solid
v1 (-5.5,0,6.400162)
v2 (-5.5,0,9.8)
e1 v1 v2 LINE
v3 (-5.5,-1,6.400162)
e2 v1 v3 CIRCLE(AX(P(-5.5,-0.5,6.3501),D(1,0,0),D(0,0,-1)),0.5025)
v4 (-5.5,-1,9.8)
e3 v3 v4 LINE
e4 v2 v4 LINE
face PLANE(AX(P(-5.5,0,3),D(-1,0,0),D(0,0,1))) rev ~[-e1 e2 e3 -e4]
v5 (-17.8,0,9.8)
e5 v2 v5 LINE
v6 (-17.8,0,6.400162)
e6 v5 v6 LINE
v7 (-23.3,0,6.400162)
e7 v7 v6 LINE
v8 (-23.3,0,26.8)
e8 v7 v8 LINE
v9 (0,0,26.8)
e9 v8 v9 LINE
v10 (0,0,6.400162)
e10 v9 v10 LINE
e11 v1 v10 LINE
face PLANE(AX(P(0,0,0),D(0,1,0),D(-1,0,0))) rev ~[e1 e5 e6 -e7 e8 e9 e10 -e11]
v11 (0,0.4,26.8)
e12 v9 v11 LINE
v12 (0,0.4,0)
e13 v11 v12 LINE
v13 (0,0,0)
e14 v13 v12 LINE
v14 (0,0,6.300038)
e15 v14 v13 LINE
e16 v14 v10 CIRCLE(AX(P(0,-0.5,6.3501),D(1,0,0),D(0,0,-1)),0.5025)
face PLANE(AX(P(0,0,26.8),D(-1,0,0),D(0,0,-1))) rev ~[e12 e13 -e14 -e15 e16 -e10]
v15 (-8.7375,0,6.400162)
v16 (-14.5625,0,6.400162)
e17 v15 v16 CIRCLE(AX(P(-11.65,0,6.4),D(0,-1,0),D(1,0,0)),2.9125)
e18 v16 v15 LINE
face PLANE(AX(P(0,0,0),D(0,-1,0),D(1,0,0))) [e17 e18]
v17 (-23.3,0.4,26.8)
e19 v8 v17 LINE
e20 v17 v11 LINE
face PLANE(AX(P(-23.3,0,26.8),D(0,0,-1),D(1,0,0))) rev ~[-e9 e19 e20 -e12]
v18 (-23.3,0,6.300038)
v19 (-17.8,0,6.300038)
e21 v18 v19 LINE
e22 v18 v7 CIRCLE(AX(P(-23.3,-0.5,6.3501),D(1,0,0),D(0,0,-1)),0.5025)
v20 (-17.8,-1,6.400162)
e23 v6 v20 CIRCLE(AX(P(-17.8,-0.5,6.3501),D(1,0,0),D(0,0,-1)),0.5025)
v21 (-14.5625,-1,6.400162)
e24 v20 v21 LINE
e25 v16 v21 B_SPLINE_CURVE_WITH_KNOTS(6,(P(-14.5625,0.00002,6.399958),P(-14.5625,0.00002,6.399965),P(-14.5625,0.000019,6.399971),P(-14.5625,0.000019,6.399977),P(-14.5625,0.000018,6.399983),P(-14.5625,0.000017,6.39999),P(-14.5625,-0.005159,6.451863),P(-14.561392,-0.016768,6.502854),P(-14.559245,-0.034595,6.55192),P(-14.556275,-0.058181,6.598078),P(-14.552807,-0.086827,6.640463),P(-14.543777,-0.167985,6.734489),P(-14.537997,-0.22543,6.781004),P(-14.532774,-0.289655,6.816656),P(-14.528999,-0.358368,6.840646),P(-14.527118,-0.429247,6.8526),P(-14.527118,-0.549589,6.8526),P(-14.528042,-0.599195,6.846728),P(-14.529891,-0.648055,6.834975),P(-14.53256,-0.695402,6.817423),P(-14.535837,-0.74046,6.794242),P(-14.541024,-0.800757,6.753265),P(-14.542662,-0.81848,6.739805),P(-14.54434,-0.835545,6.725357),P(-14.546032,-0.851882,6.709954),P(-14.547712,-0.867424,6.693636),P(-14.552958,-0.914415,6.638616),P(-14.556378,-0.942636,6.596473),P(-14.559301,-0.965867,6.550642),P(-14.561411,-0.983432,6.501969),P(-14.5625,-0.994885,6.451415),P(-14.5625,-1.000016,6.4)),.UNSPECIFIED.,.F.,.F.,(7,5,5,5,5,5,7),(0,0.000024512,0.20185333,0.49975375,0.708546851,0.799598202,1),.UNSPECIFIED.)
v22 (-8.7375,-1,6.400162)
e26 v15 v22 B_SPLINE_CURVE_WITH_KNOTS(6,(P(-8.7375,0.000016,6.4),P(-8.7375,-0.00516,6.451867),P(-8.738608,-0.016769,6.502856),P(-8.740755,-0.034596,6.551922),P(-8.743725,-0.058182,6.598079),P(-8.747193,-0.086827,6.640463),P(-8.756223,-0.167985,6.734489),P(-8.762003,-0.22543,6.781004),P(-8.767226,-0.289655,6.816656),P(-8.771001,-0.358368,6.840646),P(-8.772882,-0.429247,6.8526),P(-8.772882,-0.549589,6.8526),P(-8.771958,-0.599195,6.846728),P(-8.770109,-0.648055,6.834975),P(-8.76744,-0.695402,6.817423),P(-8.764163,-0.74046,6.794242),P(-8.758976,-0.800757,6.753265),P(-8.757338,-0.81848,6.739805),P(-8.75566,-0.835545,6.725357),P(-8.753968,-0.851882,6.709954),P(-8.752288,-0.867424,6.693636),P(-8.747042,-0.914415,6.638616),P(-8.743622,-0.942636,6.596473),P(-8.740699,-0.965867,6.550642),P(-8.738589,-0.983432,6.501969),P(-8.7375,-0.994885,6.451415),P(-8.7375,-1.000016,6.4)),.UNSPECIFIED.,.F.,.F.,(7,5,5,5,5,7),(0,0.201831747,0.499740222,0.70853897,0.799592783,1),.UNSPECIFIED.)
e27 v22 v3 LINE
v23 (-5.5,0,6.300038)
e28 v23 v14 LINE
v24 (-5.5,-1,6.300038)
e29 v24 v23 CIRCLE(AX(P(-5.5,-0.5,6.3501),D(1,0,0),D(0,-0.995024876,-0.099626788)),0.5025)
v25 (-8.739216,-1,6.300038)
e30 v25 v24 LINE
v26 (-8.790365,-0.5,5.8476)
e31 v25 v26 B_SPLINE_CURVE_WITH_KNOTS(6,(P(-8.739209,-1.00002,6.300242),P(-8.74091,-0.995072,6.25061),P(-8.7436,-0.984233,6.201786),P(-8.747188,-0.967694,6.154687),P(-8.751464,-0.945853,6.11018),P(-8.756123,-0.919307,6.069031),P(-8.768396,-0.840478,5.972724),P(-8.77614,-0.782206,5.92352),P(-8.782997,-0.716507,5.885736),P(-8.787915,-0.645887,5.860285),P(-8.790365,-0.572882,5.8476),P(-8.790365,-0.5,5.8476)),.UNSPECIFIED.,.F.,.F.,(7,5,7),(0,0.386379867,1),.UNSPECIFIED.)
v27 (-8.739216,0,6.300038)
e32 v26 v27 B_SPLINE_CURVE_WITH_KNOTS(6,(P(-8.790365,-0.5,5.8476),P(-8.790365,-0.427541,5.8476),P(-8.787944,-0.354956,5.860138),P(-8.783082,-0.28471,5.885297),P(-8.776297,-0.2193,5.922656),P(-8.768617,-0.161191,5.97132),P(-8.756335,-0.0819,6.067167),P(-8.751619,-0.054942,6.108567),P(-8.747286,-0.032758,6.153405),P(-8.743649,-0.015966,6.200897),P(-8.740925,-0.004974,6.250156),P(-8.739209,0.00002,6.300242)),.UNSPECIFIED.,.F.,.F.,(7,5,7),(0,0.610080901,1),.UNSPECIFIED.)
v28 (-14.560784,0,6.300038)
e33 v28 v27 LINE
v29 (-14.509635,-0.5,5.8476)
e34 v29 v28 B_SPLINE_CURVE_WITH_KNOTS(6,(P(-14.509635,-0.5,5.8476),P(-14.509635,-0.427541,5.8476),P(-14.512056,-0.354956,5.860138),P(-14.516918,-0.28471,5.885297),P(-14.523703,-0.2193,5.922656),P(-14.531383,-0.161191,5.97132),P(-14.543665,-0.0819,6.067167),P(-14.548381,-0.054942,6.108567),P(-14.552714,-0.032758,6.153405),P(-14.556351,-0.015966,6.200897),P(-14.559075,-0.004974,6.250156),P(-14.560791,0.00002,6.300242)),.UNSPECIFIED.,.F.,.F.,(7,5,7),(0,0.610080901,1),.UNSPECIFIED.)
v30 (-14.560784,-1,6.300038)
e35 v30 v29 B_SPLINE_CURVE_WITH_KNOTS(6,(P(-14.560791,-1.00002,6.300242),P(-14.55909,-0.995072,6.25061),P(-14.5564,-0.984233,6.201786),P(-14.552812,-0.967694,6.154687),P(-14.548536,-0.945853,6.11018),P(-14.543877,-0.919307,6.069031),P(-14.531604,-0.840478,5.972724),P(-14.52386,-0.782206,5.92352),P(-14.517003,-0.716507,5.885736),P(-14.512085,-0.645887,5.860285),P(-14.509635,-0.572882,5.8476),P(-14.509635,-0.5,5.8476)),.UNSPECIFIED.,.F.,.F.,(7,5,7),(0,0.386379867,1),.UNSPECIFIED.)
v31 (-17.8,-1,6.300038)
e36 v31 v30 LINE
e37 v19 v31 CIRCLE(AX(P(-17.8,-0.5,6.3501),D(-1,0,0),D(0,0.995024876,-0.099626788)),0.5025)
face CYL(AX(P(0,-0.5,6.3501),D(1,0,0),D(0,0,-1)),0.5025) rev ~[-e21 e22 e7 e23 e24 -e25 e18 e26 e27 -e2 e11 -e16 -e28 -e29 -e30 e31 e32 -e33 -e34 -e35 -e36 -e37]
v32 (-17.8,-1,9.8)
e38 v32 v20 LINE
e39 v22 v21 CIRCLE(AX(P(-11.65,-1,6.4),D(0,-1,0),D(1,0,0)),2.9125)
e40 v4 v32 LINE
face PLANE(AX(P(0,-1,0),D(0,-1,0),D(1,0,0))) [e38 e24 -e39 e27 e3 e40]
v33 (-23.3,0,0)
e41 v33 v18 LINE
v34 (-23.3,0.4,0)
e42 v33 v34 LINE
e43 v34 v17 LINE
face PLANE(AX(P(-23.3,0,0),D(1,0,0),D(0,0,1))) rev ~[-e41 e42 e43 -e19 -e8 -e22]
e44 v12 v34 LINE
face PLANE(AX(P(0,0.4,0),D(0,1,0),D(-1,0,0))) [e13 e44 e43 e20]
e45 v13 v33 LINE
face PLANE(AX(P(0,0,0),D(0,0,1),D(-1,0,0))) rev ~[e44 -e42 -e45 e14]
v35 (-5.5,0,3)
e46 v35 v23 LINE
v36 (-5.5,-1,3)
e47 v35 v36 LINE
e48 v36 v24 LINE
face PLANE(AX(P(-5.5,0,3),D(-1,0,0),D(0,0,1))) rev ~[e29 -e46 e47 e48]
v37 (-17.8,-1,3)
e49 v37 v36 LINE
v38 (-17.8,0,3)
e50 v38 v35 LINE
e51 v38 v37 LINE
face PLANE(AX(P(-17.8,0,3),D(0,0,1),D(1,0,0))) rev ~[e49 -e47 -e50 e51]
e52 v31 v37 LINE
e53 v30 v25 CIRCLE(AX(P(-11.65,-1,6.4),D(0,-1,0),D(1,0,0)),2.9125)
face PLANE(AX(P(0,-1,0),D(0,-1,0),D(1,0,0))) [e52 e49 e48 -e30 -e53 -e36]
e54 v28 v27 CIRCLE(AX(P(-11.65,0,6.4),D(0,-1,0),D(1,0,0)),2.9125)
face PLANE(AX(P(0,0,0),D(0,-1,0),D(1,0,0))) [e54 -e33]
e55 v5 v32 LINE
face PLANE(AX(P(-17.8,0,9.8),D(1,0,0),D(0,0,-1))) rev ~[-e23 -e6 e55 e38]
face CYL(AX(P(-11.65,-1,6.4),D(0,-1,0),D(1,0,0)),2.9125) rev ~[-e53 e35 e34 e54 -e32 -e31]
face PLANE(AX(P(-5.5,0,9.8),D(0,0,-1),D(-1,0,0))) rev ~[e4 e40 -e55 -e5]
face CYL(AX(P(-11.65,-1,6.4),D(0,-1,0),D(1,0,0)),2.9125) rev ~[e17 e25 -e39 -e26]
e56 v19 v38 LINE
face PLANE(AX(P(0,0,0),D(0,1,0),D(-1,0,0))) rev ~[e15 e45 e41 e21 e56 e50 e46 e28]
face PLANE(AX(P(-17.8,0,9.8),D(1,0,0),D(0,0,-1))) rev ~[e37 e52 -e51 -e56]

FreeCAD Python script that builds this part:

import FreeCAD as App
import Part
import Sketcher
from FreeCAD import Vector

doc = App.newDocument("Part")
params = doc.addObject("Spreadsheet::Sheet", "Params")
for row, (alias, value) in enumerate([
    ("sketch1_width", "23.3 mm"),
    ("sketch1_height", "26.8 mm"),
    ("pad1_length", "0.4 mm"),
    ("sketch2_width", "12.3 mm"),
    ("sketch2_height", "6.8 mm"),
    ("pad2_length", "1 mm"),
    ("pocket1_length", "1 mm"),
    ("sketch5_diameter", "3.3 mm"),
    ("hole_diameter", "3.3 mm"),
    ("hole_depth", "12 mm"),
    ("hole_cbore_diameter", "8 mm"),
    ("hole_cbore_depth", "4 mm"),
], start=1):
    params.set(f"A{row}", alias)
    params.set(f"B{row}", "=" + value)
    params.setAlias(f"B{row}", alias)

body = doc.addObject("PartDesign::Body", "Body")

# Sketch on XZ plane
sketch1 = doc.addObject("Sketcher::SketchObject", "Sketch")
body.addObject(sketch1)
sketch1.AttachmentSupport = (doc.XZ_Plane, [""])
sketch1.MapMode = "FlatFace"
sketch1.addGeometry(Part.LineSegment(Vector(0, 27, 0), Vector(0, 0, 0)), False)
sketch1.addGeometry(Part.LineSegment(Vector(0, 0, 0), Vector(-23, 0, 0)), False)
sketch1.addGeometry(Part.LineSegment(Vector(-23, 0, 0), Vector(-23, 27, 0)), False)
sketch1.addGeometry(Part.LineSegment(Vector(-23, 27, 0), Vector(0, 27, 0)), False)
sketch1.addConstraint(Sketcher.Constraint("Coincident", 0, 2, 1, 1))
sketch1.addConstraint(Sketcher.Constraint("Coincident", 1, 2, 2, 1))
sketch1.addConstraint(Sketcher.Constraint("Coincident", 2, 2, 3, 1))
sketch1.addConstraint(Sketcher.Constraint("Coincident", 3, 2, 0, 1))
sketch1.addConstraint(Sketcher.Constraint("Vertical", 0))
sketch1.addConstraint(Sketcher.Constraint("Horizontal", 1))
sketch1.addConstraint(Sketcher.Constraint("Vertical", 2))
sketch1.addConstraint(Sketcher.Constraint("Horizontal", 3))
sketch1.addConstraint(Sketcher.Constraint("Coincident", 0, 2, -1, 1))
sketch1.addConstraint(Sketcher.Constraint("DistanceX", 1, 2, 1, 1, 23.3))
sketch1.addConstraint(Sketcher.Constraint("DistanceY", 0, 2, 0, 1, 26.8))
sketch1.setExpression("Constraints[9]", "Params.sketch1_width")
sketch1.setExpression("Constraints[10]", "Params.sketch1_height")
pad1 = doc.addObject("PartDesign::Pad", "Pad")
body.addObject(pad1)
pad1.Profile = sketch1
pad1.setExpression("Length", "Params.pad1_length")
pad1.Reversed = True

# Sketch on XZ plane
sketch2 = doc.addObject("Sketcher::SketchObject", "Sketch001")
body.addObject(sketch2)
sketch2.AttachmentSupport = (doc.XZ_Plane, [""])
sketch2.MapMode = "FlatFace"
sketch2.addGeometry(Part.LineSegment(Vector(-18, 10, 0), Vector(-18, 3, 0)), False)
sketch2.addGeometry(Part.LineSegment(Vector(-18, 3, 0), Vector(-6, 3, 0)), False)
sketch2.addGeometry(Part.LineSegment(Vector(-6, 3, 0), Vector(-6, 10, 0)), False)
sketch2.addGeometry(Part.LineSegment(Vector(-6, 10, 0), Vector(-18, 10, 0)), False)
sketch2.addConstraint(Sketcher.Constraint("Coincident", 0, 2, 1, 1))
sketch2.addConstraint(Sketcher.Constraint("Coincident", 1, 2, 2, 1))
sketch2.addConstraint(Sketcher.Constraint("Coincident", 2, 2, 3, 1))
sketch2.addConstraint(Sketcher.Constraint("Coincident", 3, 2, 0, 1))
sketch2.addConstraint(Sketcher.Constraint("Vertical", 0))
sketch2.addConstraint(Sketcher.Constraint("Horizontal", 1))
sketch2.addConstraint(Sketcher.Constraint("Vertical", 2))
sketch2.addConstraint(Sketcher.Constraint("Horizontal", 3))
sketch2.addConstraint(Sketcher.Constraint("DistanceY", -1, 1, 0, 2, 3.0))
sketch2.addConstraint(Sketcher.Constraint("DistanceX", 1, 2, -1, 1, 5.5))
sketch2.addConstraint(Sketcher.Constraint("DistanceX", 1, 1, 1, 2, 12.3))
sketch2.addConstraint(Sketcher.Constraint("DistanceY", 0, 2, 0, 1, 6.8))
sketch2.setExpression("Constraints[10]", "Params.sketch2_width")
sketch2.setExpression("Constraints[11]", "Params.sketch2_height")
pad2 = doc.addObject("PartDesign::Pad", "Pad001")
body.addObject(pad2)
pad2.Profile = sketch2
pad2.setExpression("Length", "Params.pad2_length")

# Sketch on XZ plane
sketch3 = doc.addObject("Sketcher::SketchObject", "Sketch002")
body.addObject(sketch3)
sketch3.AttachmentSupport = (doc.XZ_Plane, [""])
sketch3.MapMode = "FlatFace"
sketch3.AttachmentOffset = App.Placement(Vector(0, 0, 1), App.Rotation())
sketch3.addGeometry(Part.Circle(Vector(-11.7, 6.4, 0), Vector(0, 0, 1), 2.9), False)
sketch3.addConstraint(Sketcher.Constraint("Diameter", 0, 5.825))
sketch3.addConstraint(Sketcher.Constraint("DistanceY", -1, 1, 0, 3, 6.4))
sketch3.addConstraint(Sketcher.Constraint("DistanceX", 0, 3, -1, 1, 11.65))
pocket1 = doc.addObject("PartDesign::Pocket", "Pocket")
body.addObject(pocket1)
pocket1.Profile = sketch3
pocket1.setExpression("Length", "Params.pocket1_length")

# Sketch on YZ plane
sketch4 = doc.addObject("Sketcher::SketchObject", "Sketch003")
body.addObject(sketch4)
sketch4.AttachmentSupport = (doc.YZ_Plane, [""])
sketch4.MapMode = "FlatFace"
sketch4.addGeometry(Part.Circle(Vector(-0.5, 6.4, 0), Vector(0, 0, 1), 0.5), False)
sketch4.addConstraint(Sketcher.Constraint("Diameter", 0, 1.005))
sketch4.addConstraint(Sketcher.Constraint("DistanceX", 0, 3, -1, 1, 0.5))
sketch4.addConstraint(Sketcher.Constraint("DistanceY", -1, 1, 0, 3, 6.35))
pocket2 = doc.addObject("PartDesign::Pocket", "Pocket001")
body.addObject(pocket2)
pocket2.Profile = sketch4
pocket2.Type = "ThroughAll"

# Sketch on XZ plane
sketch5 = doc.addObject("Sketcher::SketchObject", "Sketch004")
body.addObject(sketch5)
sketch5.AttachmentSupport = (doc.XZ_Plane, [""])
sketch5.MapMode = "FlatFace"
sketch5.AttachmentOffset = App.Placement(Vector(0, 0, 19.1011), App.Rotation())
sketch5.addGeometry(Part.Circle(Vector(-85.8, 16.6, 0), Vector(0, 0, 1), 1.6), False)
sketch5.addGeometry(Part.Circle(Vector(-68.9, 6.9, 0), Vector(0, 0, 1), 1.6), False)
sketch5.addGeometry(Part.Circle(Vector(-85.8, -2.9, 0), Vector(0, 0, 1), 1.6), False)
sketch5.addConstraint(Sketcher.Constraint("Equal", 0, 1))
sketch5.addConstraint(Sketcher.Constraint("Equal", 1, 2))
sketch5.addConstraint(Sketcher.Constraint("Vertical", 0, 3, 2, 3))
sketch5.addConstraint(Sketcher.Constraint("Diameter", 0, 3.3))
sketch5.addConstraint(Sketcher.Constraint("DistanceX", 0, 3, -1, 1, 85.791))
sketch5.addConstraint(Sketcher.Constraint("DistanceY", -1, 1, 0, 3, 16.623))
sketch5.addConstraint(Sketcher.Constraint("DistanceX", 1, 3, -1, 1, 68.8683))
sketch5.addConstraint(Sketcher.Constraint("DistanceY", -1, 1, 1, 3, 6.8526))
sketch5.addConstraint(Sketcher.Constraint("DistanceY", 2, 3, -1, 1, 2.9177))
sketch5.setExpression("Constraints[3]", "Params.sketch5_diameter")
doc.recompute()
hole = doc.addObject("PartDesign::Hole", "Hole")
body.addObject(hole)
hole.Profile = sketch5
hole.ThreadType = "None"
hole.setExpression("Diameter", "Params.hole_diameter")
hole.DepthType = "Dimension"
hole.setExpression("Depth", "Params.hole_depth")
hole.DrillPoint = "Angled"
hole.DrillPointAngle = 118
hole.HoleCutType = "Counterbore"
hole.setExpression("HoleCutDiameter", "Params.hole_cbore_diameter")
hole.setExpression("HoleCutDepth", "Params.hole_cbore_depth")
hole.Reversed = True

doc.recompute()
